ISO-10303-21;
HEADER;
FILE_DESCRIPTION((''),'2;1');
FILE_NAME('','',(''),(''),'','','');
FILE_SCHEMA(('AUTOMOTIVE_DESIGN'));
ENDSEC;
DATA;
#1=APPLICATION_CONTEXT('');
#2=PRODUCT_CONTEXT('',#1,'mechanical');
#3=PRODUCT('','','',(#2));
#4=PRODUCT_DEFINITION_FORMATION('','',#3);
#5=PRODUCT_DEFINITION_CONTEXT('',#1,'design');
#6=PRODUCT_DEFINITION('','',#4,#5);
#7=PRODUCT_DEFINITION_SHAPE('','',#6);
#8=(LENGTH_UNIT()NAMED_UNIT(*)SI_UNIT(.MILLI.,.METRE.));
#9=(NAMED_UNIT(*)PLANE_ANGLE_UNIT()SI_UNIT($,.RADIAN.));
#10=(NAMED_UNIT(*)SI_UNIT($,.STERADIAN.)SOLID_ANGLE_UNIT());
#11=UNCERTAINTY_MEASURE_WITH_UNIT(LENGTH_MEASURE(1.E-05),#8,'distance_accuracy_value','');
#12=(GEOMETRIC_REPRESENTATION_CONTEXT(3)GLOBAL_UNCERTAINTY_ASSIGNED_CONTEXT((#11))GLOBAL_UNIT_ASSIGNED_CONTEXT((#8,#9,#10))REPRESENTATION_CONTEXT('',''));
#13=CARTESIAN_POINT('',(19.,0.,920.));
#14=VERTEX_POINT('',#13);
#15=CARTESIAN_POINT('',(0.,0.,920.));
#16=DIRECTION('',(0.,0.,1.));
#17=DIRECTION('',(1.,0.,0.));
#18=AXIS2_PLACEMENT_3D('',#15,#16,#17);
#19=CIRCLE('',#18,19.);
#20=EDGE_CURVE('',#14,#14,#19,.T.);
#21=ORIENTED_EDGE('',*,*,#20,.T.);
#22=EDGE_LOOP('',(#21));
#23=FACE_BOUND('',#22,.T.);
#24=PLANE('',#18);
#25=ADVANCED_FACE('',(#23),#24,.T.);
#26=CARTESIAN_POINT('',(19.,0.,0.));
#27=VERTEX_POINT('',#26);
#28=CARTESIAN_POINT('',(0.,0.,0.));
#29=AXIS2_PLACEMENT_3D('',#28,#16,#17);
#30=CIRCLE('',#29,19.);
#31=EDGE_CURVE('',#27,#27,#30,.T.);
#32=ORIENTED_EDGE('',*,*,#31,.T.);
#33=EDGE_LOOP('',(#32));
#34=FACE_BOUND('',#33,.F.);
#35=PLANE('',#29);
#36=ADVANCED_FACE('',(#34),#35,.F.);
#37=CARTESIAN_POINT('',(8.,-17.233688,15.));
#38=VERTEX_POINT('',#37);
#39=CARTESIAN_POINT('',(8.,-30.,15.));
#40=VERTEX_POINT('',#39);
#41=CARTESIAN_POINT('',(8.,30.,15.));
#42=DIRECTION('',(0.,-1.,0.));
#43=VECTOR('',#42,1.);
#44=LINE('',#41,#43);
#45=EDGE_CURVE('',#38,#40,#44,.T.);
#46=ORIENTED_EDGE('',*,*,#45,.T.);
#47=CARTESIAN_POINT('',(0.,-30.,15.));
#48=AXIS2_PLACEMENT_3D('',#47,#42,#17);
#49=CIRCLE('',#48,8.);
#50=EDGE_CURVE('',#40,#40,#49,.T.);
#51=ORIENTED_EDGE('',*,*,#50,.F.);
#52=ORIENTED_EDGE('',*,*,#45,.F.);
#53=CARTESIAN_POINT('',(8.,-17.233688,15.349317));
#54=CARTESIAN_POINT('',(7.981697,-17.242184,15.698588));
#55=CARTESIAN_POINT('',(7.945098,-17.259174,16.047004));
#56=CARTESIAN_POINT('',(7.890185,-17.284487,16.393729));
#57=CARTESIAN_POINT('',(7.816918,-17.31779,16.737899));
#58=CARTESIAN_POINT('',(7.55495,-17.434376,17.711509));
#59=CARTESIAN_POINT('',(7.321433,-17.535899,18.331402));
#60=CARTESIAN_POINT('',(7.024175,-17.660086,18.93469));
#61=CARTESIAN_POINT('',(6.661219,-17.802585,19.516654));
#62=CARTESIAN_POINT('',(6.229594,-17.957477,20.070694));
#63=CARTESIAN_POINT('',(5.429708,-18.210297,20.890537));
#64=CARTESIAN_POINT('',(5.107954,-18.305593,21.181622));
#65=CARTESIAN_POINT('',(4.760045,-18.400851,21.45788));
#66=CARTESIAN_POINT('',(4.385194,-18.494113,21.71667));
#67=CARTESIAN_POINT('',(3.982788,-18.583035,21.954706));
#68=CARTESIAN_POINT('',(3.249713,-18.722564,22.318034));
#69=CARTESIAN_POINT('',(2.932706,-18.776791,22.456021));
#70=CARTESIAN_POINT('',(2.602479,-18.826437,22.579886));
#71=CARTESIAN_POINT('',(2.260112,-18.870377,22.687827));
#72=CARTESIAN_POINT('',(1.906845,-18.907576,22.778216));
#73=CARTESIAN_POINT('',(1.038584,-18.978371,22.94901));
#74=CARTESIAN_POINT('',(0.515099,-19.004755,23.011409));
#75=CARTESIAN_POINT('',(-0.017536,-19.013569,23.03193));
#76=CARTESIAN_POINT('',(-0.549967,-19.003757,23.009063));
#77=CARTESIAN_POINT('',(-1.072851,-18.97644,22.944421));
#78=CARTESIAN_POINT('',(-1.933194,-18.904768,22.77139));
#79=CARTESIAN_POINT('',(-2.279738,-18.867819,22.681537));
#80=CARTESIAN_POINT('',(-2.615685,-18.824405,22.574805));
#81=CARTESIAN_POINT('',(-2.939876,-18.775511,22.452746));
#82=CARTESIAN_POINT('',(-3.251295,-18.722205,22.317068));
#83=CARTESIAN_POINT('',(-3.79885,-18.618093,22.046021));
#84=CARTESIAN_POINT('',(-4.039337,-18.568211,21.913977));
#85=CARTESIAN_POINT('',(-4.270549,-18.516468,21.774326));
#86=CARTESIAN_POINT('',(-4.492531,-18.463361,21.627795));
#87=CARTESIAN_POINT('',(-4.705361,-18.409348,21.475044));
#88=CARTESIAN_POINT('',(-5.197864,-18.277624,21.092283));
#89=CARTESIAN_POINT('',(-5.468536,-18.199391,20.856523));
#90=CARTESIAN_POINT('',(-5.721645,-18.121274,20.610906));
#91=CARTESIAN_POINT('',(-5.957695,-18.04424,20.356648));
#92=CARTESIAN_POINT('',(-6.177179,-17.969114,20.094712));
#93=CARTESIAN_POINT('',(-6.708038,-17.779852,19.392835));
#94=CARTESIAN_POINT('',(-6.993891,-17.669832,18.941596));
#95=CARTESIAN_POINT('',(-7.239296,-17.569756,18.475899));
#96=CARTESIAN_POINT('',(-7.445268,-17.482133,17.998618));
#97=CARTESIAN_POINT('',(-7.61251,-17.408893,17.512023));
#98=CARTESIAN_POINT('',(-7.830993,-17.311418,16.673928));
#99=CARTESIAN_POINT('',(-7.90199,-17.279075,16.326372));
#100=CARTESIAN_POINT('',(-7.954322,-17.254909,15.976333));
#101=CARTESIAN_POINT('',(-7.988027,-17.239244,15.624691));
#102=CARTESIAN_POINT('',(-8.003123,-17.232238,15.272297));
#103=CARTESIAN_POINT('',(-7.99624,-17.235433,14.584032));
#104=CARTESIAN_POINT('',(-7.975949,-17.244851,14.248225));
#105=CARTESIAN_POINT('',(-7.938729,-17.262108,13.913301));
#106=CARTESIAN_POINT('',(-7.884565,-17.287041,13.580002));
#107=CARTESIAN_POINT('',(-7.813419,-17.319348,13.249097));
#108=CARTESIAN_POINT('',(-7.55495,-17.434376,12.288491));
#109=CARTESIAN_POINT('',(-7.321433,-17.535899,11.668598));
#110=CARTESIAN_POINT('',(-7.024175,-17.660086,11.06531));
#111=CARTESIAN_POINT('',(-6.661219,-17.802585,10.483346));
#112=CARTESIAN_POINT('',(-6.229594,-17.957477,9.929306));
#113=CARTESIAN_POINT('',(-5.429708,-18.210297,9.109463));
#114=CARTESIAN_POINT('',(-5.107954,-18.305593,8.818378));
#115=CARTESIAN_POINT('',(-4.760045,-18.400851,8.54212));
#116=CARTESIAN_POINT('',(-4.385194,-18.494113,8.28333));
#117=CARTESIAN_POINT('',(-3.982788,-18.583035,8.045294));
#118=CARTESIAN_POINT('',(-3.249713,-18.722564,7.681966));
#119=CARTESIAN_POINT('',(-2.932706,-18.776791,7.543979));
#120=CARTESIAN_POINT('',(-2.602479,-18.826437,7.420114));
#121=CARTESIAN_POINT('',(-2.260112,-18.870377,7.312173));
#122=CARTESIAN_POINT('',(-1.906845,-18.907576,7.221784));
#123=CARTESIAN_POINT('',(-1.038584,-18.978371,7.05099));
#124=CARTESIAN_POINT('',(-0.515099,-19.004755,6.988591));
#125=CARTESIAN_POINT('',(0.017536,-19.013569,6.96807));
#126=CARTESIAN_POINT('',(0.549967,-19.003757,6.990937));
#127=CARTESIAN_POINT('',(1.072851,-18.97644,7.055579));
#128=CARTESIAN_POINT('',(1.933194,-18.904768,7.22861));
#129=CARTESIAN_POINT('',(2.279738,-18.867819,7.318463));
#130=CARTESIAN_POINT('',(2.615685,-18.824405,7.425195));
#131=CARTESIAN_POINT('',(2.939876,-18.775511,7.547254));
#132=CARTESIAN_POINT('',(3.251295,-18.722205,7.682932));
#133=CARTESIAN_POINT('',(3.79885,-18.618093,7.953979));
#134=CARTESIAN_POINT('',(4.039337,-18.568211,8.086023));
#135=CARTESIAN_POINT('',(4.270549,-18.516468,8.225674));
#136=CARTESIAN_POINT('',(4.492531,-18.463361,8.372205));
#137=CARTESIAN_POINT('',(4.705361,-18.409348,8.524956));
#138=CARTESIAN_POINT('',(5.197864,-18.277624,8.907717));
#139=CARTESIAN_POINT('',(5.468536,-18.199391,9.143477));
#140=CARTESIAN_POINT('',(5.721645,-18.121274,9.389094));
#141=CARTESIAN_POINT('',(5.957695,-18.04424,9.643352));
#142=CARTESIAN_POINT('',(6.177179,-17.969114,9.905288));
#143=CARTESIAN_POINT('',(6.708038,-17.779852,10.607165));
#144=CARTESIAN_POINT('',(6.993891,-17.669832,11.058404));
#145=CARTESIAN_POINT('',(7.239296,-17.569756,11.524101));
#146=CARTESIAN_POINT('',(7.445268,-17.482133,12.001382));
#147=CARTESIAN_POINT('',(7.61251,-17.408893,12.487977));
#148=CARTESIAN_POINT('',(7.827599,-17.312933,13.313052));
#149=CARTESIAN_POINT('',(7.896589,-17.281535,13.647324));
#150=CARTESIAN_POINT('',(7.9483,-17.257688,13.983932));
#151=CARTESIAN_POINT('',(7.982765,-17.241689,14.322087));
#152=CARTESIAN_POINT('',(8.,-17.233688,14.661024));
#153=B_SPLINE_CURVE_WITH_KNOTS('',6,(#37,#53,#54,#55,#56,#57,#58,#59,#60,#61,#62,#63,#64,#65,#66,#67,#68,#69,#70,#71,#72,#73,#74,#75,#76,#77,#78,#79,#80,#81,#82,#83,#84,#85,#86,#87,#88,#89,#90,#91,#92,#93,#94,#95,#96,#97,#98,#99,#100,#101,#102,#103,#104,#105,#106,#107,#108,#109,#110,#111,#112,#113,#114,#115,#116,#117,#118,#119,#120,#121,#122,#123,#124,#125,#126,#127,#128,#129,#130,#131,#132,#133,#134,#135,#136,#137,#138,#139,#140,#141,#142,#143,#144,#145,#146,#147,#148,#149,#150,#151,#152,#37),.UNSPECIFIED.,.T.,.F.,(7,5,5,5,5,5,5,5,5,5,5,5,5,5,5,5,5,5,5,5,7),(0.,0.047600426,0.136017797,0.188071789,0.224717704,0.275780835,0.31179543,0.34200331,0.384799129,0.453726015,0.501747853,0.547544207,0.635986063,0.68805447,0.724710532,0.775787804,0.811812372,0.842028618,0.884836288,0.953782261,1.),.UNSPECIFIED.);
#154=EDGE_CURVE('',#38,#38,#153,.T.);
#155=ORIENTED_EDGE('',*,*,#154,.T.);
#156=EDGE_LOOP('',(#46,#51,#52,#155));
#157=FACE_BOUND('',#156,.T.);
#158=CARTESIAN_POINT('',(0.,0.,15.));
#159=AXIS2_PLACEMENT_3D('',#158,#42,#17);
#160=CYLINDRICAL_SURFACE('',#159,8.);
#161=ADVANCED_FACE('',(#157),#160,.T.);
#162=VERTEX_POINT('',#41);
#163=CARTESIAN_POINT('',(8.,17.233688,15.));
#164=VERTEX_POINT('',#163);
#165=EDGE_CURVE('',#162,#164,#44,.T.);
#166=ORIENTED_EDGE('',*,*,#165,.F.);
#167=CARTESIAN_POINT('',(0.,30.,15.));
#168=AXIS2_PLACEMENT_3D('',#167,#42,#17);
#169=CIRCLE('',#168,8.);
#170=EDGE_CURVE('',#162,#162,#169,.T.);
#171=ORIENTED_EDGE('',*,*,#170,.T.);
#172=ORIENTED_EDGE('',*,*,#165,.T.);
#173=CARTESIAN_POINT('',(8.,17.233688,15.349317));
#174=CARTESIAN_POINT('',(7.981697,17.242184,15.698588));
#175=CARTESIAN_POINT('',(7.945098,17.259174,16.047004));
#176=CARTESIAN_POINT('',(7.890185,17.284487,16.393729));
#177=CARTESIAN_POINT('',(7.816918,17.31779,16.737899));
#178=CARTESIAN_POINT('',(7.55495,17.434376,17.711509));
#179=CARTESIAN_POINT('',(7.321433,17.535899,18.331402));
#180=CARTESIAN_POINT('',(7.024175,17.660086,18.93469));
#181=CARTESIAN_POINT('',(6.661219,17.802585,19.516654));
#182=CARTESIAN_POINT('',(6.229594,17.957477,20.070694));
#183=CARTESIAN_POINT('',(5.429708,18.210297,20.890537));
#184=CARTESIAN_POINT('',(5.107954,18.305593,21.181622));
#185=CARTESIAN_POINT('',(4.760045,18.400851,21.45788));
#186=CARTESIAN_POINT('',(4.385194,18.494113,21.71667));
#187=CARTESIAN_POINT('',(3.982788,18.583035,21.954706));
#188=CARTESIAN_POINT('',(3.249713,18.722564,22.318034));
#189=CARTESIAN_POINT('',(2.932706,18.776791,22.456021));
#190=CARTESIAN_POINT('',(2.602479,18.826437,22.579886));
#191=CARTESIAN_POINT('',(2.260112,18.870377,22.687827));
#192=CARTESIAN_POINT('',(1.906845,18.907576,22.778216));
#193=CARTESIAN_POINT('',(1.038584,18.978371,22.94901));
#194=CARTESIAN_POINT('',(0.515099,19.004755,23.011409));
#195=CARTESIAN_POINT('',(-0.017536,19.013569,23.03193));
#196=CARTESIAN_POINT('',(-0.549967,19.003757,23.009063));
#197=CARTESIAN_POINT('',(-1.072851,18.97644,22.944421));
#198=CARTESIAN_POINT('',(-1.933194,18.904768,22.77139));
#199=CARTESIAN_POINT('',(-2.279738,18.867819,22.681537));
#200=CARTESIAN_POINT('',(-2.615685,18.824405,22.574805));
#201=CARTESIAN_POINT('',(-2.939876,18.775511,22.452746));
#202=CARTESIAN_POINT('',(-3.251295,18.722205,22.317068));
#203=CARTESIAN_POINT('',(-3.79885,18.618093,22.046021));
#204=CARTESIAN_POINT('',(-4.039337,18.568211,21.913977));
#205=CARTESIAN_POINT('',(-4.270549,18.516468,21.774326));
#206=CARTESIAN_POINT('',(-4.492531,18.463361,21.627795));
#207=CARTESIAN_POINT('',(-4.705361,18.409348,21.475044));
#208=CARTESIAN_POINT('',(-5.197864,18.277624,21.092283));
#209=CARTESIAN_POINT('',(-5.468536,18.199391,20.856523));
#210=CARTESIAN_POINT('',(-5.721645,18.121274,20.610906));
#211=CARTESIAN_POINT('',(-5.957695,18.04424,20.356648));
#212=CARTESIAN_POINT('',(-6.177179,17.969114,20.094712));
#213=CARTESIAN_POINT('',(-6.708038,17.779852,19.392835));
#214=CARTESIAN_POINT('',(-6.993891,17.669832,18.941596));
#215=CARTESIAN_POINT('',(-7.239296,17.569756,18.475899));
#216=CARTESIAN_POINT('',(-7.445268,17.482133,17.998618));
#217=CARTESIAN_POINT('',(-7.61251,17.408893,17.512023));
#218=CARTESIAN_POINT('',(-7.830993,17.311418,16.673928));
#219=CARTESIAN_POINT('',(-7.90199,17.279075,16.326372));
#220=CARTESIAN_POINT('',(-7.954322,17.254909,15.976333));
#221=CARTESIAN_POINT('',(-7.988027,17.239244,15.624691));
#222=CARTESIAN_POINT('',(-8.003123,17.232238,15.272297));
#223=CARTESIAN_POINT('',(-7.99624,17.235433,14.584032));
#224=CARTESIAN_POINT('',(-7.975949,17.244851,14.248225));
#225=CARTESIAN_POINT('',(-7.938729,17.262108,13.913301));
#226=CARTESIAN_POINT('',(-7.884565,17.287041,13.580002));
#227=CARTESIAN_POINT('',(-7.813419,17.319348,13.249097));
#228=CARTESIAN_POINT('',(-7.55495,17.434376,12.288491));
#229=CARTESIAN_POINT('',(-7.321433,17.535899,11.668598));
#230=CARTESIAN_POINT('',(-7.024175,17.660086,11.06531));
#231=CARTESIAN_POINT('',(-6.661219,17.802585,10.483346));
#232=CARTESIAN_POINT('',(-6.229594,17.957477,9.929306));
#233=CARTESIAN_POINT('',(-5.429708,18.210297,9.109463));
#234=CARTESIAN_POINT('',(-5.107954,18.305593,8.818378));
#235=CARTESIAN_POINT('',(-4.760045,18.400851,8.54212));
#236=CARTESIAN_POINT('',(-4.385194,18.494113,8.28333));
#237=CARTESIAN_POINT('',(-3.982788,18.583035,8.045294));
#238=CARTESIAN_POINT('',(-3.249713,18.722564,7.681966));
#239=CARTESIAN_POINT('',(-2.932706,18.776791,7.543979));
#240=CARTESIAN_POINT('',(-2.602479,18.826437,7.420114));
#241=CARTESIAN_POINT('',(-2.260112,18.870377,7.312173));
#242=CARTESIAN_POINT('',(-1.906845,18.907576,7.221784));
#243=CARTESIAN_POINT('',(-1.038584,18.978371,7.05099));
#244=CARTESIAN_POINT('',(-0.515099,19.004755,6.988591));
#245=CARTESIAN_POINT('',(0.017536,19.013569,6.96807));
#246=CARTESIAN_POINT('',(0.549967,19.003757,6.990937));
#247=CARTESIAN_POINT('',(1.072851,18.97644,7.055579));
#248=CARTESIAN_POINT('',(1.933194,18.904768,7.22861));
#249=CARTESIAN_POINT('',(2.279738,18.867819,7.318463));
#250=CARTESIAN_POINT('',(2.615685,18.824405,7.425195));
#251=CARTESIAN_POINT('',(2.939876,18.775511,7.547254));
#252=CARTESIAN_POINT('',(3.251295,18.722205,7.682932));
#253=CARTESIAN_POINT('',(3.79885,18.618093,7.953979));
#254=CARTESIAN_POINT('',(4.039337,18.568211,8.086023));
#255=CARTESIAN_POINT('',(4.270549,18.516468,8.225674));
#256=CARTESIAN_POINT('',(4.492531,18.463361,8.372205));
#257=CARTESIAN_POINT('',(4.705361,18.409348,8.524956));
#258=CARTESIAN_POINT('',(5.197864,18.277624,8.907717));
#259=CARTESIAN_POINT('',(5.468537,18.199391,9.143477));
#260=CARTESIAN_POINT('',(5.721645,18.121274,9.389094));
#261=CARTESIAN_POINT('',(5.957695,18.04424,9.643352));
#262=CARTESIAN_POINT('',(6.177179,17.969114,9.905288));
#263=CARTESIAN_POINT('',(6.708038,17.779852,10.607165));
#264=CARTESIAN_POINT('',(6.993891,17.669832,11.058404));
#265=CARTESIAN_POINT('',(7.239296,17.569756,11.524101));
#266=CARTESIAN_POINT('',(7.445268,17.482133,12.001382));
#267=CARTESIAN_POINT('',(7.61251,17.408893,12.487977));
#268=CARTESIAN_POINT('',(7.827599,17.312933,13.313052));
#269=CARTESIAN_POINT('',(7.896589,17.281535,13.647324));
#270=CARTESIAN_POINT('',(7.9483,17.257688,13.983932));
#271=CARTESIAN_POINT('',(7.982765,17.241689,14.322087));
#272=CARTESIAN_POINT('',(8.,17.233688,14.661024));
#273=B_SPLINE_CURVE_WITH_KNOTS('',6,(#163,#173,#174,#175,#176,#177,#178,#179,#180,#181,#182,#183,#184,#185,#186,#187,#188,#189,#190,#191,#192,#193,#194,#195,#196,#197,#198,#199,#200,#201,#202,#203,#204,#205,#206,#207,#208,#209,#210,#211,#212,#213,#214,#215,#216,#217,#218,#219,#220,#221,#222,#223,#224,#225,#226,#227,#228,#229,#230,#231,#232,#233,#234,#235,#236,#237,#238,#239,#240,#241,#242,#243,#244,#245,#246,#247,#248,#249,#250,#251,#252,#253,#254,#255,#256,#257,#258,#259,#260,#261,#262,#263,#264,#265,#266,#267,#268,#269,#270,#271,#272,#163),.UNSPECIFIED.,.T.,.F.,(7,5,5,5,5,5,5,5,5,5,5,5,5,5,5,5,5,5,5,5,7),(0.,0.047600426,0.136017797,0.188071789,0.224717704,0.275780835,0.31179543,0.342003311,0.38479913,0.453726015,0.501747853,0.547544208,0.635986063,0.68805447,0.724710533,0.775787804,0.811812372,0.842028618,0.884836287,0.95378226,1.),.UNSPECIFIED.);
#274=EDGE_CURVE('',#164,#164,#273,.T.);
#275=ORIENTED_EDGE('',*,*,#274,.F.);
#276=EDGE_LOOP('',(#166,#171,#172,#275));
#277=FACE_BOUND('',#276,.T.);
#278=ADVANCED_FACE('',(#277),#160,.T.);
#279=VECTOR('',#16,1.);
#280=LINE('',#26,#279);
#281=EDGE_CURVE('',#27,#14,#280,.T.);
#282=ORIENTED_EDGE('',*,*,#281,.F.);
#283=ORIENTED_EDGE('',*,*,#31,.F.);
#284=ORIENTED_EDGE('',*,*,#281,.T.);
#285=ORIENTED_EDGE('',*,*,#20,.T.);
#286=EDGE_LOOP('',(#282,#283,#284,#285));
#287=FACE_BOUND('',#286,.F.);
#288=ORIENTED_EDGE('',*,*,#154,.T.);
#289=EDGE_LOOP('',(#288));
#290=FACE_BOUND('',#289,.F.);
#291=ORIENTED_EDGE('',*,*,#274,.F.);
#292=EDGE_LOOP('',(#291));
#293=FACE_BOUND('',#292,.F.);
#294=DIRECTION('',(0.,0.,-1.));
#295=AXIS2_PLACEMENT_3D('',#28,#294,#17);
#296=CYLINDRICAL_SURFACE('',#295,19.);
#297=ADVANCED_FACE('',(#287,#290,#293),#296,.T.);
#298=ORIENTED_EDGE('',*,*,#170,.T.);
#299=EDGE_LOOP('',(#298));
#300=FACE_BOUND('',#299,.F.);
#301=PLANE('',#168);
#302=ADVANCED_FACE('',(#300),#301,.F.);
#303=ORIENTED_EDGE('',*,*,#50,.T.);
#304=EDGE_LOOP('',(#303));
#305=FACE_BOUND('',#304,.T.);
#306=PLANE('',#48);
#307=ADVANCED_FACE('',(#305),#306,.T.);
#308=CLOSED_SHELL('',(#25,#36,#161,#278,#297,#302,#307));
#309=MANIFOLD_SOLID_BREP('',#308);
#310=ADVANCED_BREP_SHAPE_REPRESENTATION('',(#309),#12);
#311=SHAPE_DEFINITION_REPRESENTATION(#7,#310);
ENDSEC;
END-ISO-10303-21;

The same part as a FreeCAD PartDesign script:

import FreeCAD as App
import Part
import Sketcher

V = App.Vector
Q = App.Units.Quantity

doc = App.newDocument("Part")
body = doc.addObject("PartDesign::Body", "Body")

sketch1 = doc.addObject("Sketcher::SketchObject", "Sketch")
body.addObject(sketch1)
sketch1.AttachmentSupport = (doc.XY_Plane, [""])
sketch1.MapMode = "FlatFace"
sketch1.addGeometry(Part.Circle(V(0, 0, 0), V(0, 0, 1), 19), False)
sketch1.addConstraint([
    Sketcher.Constraint("Coincident", 0, 3, -1, 1),
    Sketcher.Constraint("Diameter", 0, Q("38 mm")),
])
pad1 = doc.addObject("PartDesign::Pad", "Pad")
body.addObject(pad1)
pad1.Profile = sketch1
pad1.Length = 920

sketch2 = doc.addObject("Sketcher::SketchObject", "Sketch001")
body.addObject(sketch2)
sketch2.AttachmentSupport = (doc.XZ_Plane, [""])
sketch2.MapMode = "FlatFace"
sketch2.addGeometry(Part.Circle(V(0, 15, 0), V(0, 0, 1), 8), False)
sketch2.addConstraint([
    Sketcher.Constraint("PointOnObject", 0, 3, -2),
    Sketcher.Constraint("Diameter", 0, Q("16 mm")),
    Sketcher.Constraint("DistanceY", -1, 1, 0, 3, Q("15 mm")),
])
pad2 = doc.addObject("PartDesign::Pad", "Pad001")
body.addObject(pad2)
pad2.Profile = sketch2
pad2.Length = 60
pad2.Midplane = True

doc.recompute()
